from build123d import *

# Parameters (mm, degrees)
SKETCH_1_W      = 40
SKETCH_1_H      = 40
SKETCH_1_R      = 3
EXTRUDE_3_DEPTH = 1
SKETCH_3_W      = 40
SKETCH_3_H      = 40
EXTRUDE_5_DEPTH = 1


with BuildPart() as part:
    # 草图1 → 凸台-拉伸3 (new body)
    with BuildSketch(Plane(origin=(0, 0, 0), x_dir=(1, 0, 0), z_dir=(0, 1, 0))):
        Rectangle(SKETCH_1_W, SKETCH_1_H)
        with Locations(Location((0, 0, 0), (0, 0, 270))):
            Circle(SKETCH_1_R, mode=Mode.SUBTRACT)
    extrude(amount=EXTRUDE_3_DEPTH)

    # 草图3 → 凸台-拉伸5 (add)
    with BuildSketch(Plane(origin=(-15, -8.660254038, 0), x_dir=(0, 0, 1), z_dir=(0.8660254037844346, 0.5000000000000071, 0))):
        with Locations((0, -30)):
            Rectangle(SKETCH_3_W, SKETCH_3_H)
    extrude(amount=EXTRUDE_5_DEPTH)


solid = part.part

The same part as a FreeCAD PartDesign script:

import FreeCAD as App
import Part
import Sketcher


def add_polygon(sketch, points):
    """Adds a closed chain of lines whose ends are joined by coincident constraints."""
    first, n = sketch.GeometryCount, len(points)
    for a, b in zip(points, points[1:] + points[:1]):
        sketch.addGeometry(Part.LineSegment(App.Vector(*a, 0), App.Vector(*b, 0)), False)
    for i in range(n):
        sketch.addConstraint(Sketcher.Constraint("Coincident", first + i, 2, first + (i + 1) % n, 1))

doc = App.newDocument("Part")
params = doc.addObject("Spreadsheet::Sheet", "Params")
for row, (alias, value) in enumerate([
    ("sketch1_diameter", "6 mm"),
    ("sketch1_width", "40 mm"),
    ("pad1_length", "1 mm"),
    ("sketch2_width", "40 mm"),
    ("pad2_length", "1 mm"),
], start=1):
    params.set(f"A{row}", alias)
    params.set(f"B{row}", "=" + value)
    params.setAlias(f"B{row}", alias)

body = doc.addObject("PartDesign::Body", "Body")

# Sketch on XZ plane
sketch1 = doc.addObject("Sketcher::SketchObject", "Sketch")
body.addObject(sketch1)
sketch1.AttachmentSupport = (doc.XZ_Plane, [""])
sketch1.MapMode = "FlatFace"
add_polygon(sketch1, [(-20, -20), (-20, 20), (20, 20), (20, -20)])  # lines 0-3
sketch1.addGeometry(Part.Circle(App.Vector(0, 0, 0), App.Vector(0, 0, 1), 3), False)  # 4
sketch1.addConstraint(Sketcher.Constraint("Vertical", 0))
sketch1.addConstraint(Sketcher.Constraint("Horizontal", 1))
sketch1.addConstraint(Sketcher.Constraint("Vertical", 2))
sketch1.addConstraint(Sketcher.Constraint("Horizontal", 3))
sketch1.addConstraint(Sketcher.Constraint("Coincident", 4, 3, -1, 1))
sketch1.addConstraint(Sketcher.Constraint("Symmetric", 0, 2, 2, 2, -1, 1))
sketch1.addConstraint(Sketcher.Constraint("Equal", 3, 0))
sketch1.addConstraint(Sketcher.Constraint("Diameter", 4, 6.0))
sketch1.addConstraint(Sketcher.Constraint("DistanceX", 1, 1, 1, 2, 40.0))
sketch1.setExpression("Constraints[11]", "Params.sketch1_diameter")
sketch1.setExpression("Constraints[12]", "Params.sketch1_width")
pad1 = doc.addObject("PartDesign::Pad", "Pad")
body.addObject(pad1)
pad1.Profile = sketch1
pad1.setExpression("Length", "Params.pad1_length")
pad1.Reversed = True

# Sketch on an angled plane
sketch2 = doc.addObject("Sketcher::SketchObject", "Sketch001")
body.addObject(sketch2)
sketch2.Placement = App.Placement(App.Vector(-15, -8.660254, 0), App.Rotation(App.Vector(0, 0, 1), App.Vector(0.5, -0.866025404, 0), App.Vector(0.866025404, 0.5, 0), "ZXY"))
add_polygon(sketch2, [(-20, -10), (-20, -50), (20, -50), (20, -10)])  # lines 0-3
sketch2.addConstraint(Sketcher.Constraint("Vertical", 0))
sketch2.addConstraint(Sketcher.Constraint("Horizontal", 1))
sketch2.addConstraint(Sketcher.Constraint("Vertical", 2))
sketch2.addConstraint(Sketcher.Constraint("Horizontal", 3))
sketch2.addConstraint(Sketcher.Constraint("Equal", 3, 0))
sketch2.addConstraint(Sketcher.Constraint("DistanceX", 1, 1, 1, 2, 40.0))
sketch2.addConstraint(Sketcher.Constraint("DistanceX", 0, 2, -1, 1, 20.0))
sketch2.addConstraint(Sketcher.Constraint("DistanceY", 0, 2, -1, 1, 50.0))
sketch2.setExpression("Constraints[9]", "Params.sketch2_width")
pad2 = doc.addObject("PartDesign::Pad", "Pad001")
body.addObject(pad2)
pad2.Profile = sketch2
pad2.setExpression("Length", "Params.pad2_length")

doc.recompute()
